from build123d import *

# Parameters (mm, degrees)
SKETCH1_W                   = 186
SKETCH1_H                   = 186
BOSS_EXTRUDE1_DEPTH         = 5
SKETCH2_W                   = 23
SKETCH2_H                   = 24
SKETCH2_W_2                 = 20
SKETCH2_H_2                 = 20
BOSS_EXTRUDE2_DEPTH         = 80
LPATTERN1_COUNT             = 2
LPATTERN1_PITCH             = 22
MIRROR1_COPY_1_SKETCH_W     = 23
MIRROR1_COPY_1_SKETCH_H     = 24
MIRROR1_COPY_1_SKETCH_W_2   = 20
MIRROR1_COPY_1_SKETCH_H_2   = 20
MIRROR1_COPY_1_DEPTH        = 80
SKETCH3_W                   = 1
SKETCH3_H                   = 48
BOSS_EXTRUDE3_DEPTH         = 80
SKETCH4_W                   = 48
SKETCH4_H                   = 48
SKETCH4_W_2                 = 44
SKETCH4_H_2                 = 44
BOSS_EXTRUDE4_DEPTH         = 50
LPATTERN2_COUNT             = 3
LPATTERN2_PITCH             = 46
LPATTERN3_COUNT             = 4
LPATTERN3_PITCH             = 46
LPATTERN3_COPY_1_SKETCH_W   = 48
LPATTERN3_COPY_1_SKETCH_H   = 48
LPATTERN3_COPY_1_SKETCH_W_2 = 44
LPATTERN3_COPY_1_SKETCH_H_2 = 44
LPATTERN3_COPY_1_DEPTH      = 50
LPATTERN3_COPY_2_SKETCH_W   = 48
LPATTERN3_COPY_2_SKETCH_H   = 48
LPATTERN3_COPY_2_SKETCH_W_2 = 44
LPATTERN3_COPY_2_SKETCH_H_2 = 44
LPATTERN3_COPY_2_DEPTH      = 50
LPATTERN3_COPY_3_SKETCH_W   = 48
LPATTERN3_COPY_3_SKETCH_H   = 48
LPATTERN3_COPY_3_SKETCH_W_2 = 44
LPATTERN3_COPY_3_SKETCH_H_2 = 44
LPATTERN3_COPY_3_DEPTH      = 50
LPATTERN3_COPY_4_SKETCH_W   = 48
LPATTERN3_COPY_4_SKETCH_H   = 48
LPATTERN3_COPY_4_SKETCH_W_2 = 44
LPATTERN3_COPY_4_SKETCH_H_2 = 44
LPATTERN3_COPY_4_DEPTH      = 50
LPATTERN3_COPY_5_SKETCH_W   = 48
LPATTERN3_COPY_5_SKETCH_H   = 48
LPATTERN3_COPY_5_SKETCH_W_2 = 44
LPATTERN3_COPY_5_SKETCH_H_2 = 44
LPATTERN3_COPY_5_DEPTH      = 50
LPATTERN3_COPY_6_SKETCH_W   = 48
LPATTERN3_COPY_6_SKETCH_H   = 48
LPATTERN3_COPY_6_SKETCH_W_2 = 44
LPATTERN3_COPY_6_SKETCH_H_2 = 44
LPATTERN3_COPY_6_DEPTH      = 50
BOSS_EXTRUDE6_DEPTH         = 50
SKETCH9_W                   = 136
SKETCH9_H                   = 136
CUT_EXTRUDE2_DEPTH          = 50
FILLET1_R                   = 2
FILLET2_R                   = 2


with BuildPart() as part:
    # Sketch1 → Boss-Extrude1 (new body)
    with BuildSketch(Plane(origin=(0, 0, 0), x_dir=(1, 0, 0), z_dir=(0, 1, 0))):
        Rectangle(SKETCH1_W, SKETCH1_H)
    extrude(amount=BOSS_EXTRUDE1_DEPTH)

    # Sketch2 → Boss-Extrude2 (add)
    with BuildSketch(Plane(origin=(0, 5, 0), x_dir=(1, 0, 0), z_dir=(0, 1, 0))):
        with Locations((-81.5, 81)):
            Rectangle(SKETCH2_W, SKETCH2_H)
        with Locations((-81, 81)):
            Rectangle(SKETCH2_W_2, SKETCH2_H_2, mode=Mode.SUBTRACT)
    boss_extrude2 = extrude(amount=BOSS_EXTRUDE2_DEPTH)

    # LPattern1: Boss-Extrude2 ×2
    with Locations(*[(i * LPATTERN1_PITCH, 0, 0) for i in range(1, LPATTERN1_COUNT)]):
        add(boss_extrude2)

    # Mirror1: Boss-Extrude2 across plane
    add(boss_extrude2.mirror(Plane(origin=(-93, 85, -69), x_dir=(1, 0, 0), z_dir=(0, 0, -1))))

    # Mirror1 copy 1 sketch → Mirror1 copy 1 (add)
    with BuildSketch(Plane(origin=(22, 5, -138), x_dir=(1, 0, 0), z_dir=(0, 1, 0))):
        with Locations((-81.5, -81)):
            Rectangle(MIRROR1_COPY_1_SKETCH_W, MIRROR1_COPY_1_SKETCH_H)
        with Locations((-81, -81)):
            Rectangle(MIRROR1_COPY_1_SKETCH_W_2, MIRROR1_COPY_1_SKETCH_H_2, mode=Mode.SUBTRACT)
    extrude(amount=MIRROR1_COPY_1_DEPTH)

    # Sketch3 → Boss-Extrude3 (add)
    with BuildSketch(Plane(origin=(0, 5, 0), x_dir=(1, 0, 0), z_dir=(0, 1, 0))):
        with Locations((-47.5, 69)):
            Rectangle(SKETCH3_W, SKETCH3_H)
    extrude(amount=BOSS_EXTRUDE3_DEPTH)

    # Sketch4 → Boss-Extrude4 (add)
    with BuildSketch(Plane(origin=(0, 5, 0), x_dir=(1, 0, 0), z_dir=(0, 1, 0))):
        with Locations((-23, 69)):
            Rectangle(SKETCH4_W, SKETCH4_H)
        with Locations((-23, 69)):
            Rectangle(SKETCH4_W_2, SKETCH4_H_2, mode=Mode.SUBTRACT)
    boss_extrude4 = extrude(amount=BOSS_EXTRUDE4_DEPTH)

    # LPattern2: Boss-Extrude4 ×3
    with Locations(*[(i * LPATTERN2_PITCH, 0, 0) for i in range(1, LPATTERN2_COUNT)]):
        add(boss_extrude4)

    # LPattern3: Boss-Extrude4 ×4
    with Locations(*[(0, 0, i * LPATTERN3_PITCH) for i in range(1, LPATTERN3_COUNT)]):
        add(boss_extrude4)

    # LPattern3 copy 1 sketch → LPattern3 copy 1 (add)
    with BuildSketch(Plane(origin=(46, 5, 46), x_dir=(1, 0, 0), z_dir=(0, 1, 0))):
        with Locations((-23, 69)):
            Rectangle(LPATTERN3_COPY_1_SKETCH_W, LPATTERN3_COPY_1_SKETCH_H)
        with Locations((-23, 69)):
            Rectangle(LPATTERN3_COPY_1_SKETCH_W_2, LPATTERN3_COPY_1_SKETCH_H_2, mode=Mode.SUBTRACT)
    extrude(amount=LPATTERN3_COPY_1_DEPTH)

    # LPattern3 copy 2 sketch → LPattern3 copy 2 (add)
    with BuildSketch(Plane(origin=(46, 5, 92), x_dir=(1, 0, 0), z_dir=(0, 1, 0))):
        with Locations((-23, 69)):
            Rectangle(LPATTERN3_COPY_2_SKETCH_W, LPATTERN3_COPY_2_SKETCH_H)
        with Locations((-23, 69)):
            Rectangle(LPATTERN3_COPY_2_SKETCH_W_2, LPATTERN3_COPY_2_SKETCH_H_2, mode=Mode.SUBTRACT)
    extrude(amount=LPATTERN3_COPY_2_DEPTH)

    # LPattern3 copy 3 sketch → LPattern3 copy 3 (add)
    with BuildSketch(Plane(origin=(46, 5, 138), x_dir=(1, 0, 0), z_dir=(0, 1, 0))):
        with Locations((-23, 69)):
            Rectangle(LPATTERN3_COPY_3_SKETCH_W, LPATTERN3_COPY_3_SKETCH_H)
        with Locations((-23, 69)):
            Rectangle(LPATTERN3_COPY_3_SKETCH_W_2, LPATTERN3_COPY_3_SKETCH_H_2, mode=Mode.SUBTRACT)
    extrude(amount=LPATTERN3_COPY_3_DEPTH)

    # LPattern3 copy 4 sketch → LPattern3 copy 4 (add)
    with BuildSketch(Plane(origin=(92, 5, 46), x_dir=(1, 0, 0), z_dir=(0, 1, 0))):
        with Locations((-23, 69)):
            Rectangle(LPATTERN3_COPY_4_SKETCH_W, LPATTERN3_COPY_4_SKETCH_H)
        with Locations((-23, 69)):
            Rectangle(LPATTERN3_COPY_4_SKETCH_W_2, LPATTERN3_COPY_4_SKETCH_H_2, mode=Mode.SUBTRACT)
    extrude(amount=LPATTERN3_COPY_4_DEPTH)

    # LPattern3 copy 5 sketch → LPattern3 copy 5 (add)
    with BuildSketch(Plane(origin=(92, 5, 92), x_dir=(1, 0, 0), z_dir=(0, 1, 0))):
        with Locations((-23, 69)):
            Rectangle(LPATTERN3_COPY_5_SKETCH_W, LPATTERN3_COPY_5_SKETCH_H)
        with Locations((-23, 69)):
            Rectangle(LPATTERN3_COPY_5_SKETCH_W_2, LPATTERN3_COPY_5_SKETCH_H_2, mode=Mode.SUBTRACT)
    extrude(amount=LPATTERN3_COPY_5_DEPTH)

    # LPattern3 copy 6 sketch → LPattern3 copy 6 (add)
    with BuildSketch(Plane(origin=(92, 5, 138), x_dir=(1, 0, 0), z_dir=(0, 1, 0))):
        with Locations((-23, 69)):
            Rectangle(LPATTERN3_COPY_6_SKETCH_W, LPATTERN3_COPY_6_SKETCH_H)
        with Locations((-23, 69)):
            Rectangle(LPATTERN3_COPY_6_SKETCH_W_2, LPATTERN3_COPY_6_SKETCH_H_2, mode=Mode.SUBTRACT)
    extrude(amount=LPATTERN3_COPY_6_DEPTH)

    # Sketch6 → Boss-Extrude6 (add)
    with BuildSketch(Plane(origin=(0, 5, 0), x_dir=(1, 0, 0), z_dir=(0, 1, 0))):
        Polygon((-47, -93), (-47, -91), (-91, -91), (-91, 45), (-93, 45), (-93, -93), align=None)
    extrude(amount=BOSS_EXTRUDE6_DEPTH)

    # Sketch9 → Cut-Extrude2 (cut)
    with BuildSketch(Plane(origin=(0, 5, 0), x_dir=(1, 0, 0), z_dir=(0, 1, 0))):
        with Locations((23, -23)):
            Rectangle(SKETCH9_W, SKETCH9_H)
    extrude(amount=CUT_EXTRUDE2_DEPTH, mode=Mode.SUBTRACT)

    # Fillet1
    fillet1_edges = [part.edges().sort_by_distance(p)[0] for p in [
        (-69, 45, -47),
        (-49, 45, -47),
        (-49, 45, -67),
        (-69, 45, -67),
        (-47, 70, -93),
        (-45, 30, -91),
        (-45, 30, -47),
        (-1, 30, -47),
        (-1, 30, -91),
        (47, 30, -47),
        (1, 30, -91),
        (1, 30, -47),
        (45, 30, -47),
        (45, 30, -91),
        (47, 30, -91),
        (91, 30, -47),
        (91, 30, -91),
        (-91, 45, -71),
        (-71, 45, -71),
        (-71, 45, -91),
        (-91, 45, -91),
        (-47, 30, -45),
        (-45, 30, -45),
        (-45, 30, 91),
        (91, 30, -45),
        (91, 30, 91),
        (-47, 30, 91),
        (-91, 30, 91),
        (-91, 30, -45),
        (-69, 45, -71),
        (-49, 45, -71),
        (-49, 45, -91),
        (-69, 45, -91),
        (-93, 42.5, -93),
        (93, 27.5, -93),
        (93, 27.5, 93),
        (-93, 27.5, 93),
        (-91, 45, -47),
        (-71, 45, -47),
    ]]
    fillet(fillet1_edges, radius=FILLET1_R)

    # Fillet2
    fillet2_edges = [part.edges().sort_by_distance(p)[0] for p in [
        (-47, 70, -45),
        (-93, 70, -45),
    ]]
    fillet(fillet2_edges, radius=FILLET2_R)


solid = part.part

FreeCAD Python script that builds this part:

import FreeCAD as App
import Part
import Sketcher

V = App.Vector


def edges_at(feature, points):
    """Names of the edges that pass closest to the given points."""
    edges = feature.Shape.Edges
    near = lambda p: min(range(len(edges)), key=lambda i: edges[i].distToShape(Part.Vertex(*p))[0])
    return sorted({f"Edge{near(p) + 1}" for p in points})


def add_polygon(sketch, points):
    """Adds a closed chain of lines whose ends are joined by coincident constraints."""
    first, n = sketch.GeometryCount, len(points)
    for a, b in zip(points, points[1:] + points[:1]):
        sketch.addGeometry(Part.LineSegment(App.Vector(*a, 0), App.Vector(*b, 0)), False)
    for i in range(n):
        sketch.addConstraint(Sketcher.Constraint("Coincident", first + i, 2, first + (i + 1) % n, 1))

doc = App.newDocument("Part")
body = doc.addObject("PartDesign::Body", "Body")

# Sketch on XZ plane
sketch1 = body.newObject("Sketcher::SketchObject", "Sketch")
sketch1.AttachmentSupport = (doc.getObject("XZ_Plane"), [""])
sketch1.MapMode = "FlatFace"
add_polygon(sketch1, [(-93, -93), (-93, 93), (93, 93), (93, -93)])  # lines 0-3
sketch1.addConstraint([
    Sketcher.Constraint("Vertical", 0),
    Sketcher.Constraint("Horizontal", 1),
    Sketcher.Constraint("Vertical", 2),
    Sketcher.Constraint("Horizontal", 3),
    Sketcher.Constraint("Symmetric", 0, 2, 2, 2, -1, 1),
    Sketcher.Constraint("Equal", 3, 0),
    Sketcher.Constraint("DistanceX", 1, 1, 1, 2, 186.0),
])
pad1 = body.newObject("PartDesign::Pad", "Pad")
pad1.Profile = sketch1
pad1.Length = 5
pad1.Reversed = True

# Sketch on XZ plane
sketch2 = body.newObject("Sketcher::SketchObject", "Sketch001")
sketch2.AttachmentSupport = (doc.getObject("XZ_Plane"), [""])
sketch2.MapMode = "FlatFace"
sketch2.AttachmentOffset = App.Placement(V(0, 0, -5), App.Rotation())
add_polygon(sketch2, [(-93, -93), (-93, -69), (-70, -69), (-70, -93)])  # lines 0-3
add_polygon(sketch2, [(-71, -71), (-91, -71), (-91, -91), (-71, -91)])  # lines 4-7
sketch2.addConstraint([
    Sketcher.Constraint("Vertical", 0),
    Sketcher.Constraint("Horizontal", 1),
    Sketcher.Constraint("Vertical", 2),
    Sketcher.Constraint("Horizontal", 3),
    Sketcher.Constraint("Horizontal", 4),
    Sketcher.Constraint("Vertical", 5),
    Sketcher.Constraint("Horizontal", 6),
    Sketcher.Constraint("Vertical", 7),
    Sketcher.Constraint("Equal", 6, 5),
    Sketcher.Constraint("DistanceX", 1, 1, 1, 2, 23.0),
    Sketcher.Constraint("DistanceX", 4, 2, 4, 1, 20.0),
    Sketcher.Constraint("DistanceY", 0, 1, 0, 2, 24.0),
    Sketcher.Constraint("DistanceX", 0, 2, -1, 1, 93.0),
    Sketcher.Constraint("DistanceY", 0, 2, -1, 1, 69.0),
    Sketcher.Constraint("DistanceX", 4, 2, -1, 1, 91.0),
    Sketcher.Constraint("DistanceY", 4, 2, -1, 1, 71.0),
])
pad2 = body.newObject("PartDesign::Pad", "Pad001")
pad2.Profile = sketch2
pad2.Length = 80
pad2.Reversed = True
doc.recompute()

linearpattern = body.newObject("PartDesign::LinearPattern", "LinearPattern")
linearpattern.Originals = [pad2]
linearpattern.Direction = (doc.getObject("X_Axis"), [""])
linearpattern.Mode = "offset"
linearpattern.Offset = 22
linearpattern.Occurrences = 2
body.Tip = linearpattern
doc.recompute()

datumplane = body.newObject("PartDesign::Plane", "DatumPlane")
datumplane.AttachmentSupport = (doc.getObject("XY_Plane"), [""])
datumplane.MapMode = "FlatFace"
datumplane.AttachmentOffset = App.Placement(V(0, 0, -69), App.Rotation())
mirrored = body.newObject("PartDesign::Mirrored", "Mirrored")
mirrored.Originals = [pad2]
mirrored.MirrorPlane = (datumplane, [""])
body.Tip = mirrored

# Sketch on XZ plane
sketch3 = body.newObject("Sketcher::SketchObject", "Sketch002")
sketch3.AttachmentSupport = (doc.getObject("XZ_Plane"), [""])
sketch3.MapMode = "FlatFace"
sketch3.AttachmentOffset = App.Placement(V(0, 0, -5), App.Rotation())
add_polygon(sketch3, [(-71, -69), (-71, -45), (-48, -45), (-48, -69)])  # lines 0-3
add_polygon(sketch3, [(-49, -47), (-69, -47), (-69, -67), (-49, -67)])  # lines 4-7
sketch3.addConstraint([
    Sketcher.Constraint("Vertical", 0),
    Sketcher.Constraint("Horizontal", 1),
    Sketcher.Constraint("Vertical", 2),
    Sketcher.Constraint("Horizontal", 3),
    Sketcher.Constraint("Horizontal", 4),
    Sketcher.Constraint("Vertical", 5),
    Sketcher.Constraint("Horizontal", 6),
    Sketcher.Constraint("Vertical", 7),
    Sketcher.Constraint("Equal", 6, 5),
    Sketcher.Constraint("DistanceX", 1, 1, 1, 2, 23.0),
    Sketcher.Constraint("DistanceX", 4, 2, 4, 1, 20.0),
    Sketcher.Constraint("DistanceY", 0, 1, 0, 2, 24.0),
    Sketcher.Constraint("DistanceX", 0, 2, -1, 1, 71.0),
    Sketcher.Constraint("DistanceY", 0, 2, -1, 1, 45.0),
    Sketcher.Constraint("DistanceX", 4, 2, -1, 1, 69.0),
    Sketcher.Constraint("DistanceY", 4, 2, -1, 1, 47.0),
])
pad3 = body.newObject("PartDesign::Pad", "Pad002")
pad3.Profile = sketch3
pad3.Length = 80
pad3.Reversed = True

# Sketch on XZ plane
sketch4 = body.newObject("Sketcher::SketchObject", "Sketch003")
sketch4.AttachmentSupport = (doc.getObject("XZ_Plane"), [""])
sketch4.MapMode = "FlatFace"
sketch4.AttachmentOffset = App.Placement(V(0, 0, -5), App.Rotation())
add_polygon(sketch4, [(-48, -93), (-48, -45), (-47, -45), (-47, -93)])  # lines 0-3
sketch4.addConstraint([
    Sketcher.Constraint("Vertical", 0),
    Sketcher.Constraint("Horizontal", 1),
    Sketcher.Constraint("Vertical", 2),
    Sketcher.Constraint("Horizontal", 3),
    Sketcher.Constraint("DistanceX", 1, 1, 1, 2, 1.0),
    Sketcher.Constraint("DistanceY", 0, 1, 0, 2, 48.0),
    Sketcher.Constraint("DistanceX", 0, 2, -1, 1, 48.0),
    Sketcher.Constraint("DistanceY", 0, 2, -1, 1, 45.0),
])
pad4 = body.newObject("PartDesign::Pad", "Pad003")
pad4.Profile = sketch4
pad4.Length = 80
pad4.Reversed = True

# Sketch on XZ plane
sketch5 = body.newObject("Sketcher::SketchObject", "Sketch004")
sketch5.AttachmentSupport = (doc.getObject("XZ_Plane"), [""])
sketch5.MapMode = "FlatFace"
sketch5.AttachmentOffset = App.Placement(V(0, 0, -5), App.Rotation())
add_polygon(sketch5, [(-47, -93), (-47, -45), (1, -45), (1, -93)])  # lines 0-3
add_polygon(sketch5, [(-1, -47), (-45, -47), (-45, -91), (-1, -91)])  # lines 4-7
sketch5.addConstraint([
    Sketcher.Constraint("Vertical", 0),
    Sketcher.Constraint("Horizontal", 1),
    Sketcher.Constraint("Vertical", 2),
    Sketcher.Constraint("Horizontal", 3),
    Sketcher.Constraint("Horizontal", 4),
    Sketcher.Constraint("Vertical", 5),
    Sketcher.Constraint("Horizontal", 6),
    Sketcher.Constraint("Vertical", 7),
    Sketcher.Constraint("Equal", 3, 0),
    Sketcher.Constraint("Equal", 6, 5),
    Sketcher.Constraint("DistanceX", 1, 1, 1, 2, 48.0),
    Sketcher.Constraint("DistanceX", 4, 2, 4, 1, 44.0),
    Sketcher.Constraint("DistanceX", 0, 2, -1, 1, 47.0),
    Sketcher.Constraint("DistanceY", 0, 2, -1, 1, 45.0),
    Sketcher.Constraint("DistanceX", 4, 2, -1, 1, 45.0),
    Sketcher.Constraint("DistanceY", 4, 2, -1, 1, 47.0),
])
pad5 = body.newObject("PartDesign::Pad", "Pad004")
pad5.Profile = sketch5
pad5.Length = 50
pad5.Reversed = True
doc.recompute()

linearpattern2 = body.newObject("PartDesign::LinearPattern", "LinearPattern001")
linearpattern2.Originals = [pad5]
linearpattern2.Direction = (doc.getObject("X_Axis"), [""])
linearpattern2.Mode = "offset"
linearpattern2.Offset = 46
linearpattern2.Occurrences = 3
body.Tip = linearpattern2
doc.recompute()

linearpattern3 = body.newObject("PartDesign::LinearPattern", "LinearPattern002")
linearpattern3.Originals = [pad5]
linearpattern3.Direction = (doc.getObject("Z_Axis"), [""])
linearpattern3.Mode = "offset"
linearpattern3.Offset = 46
linearpattern3.Occurrences = 4
body.Tip = linearpattern3

# Sketch on XZ plane
sketch6 = body.newObject("Sketcher::SketchObject", "Sketch005")
sketch6.AttachmentSupport = (doc.getObject("XZ_Plane"), [""])
sketch6.MapMode = "FlatFace"
sketch6.AttachmentOffset = App.Placement(V(0, 0, -5), App.Rotation())
add_polygon(sketch6, [(-1, -47), (-1, 1), (47, 1), (47, -47)])  # lines 0-3
add_polygon(sketch6, [(45, -1), (1, -1), (1, -45), (45, -45)])  # lines 4-7
sketch6.addConstraint([
    Sketcher.Constraint("Vertical", 0),
    Sketcher.Constraint("Horizontal", 1),
    Sketcher.Constraint("Vertical", 2),
    Sketcher.Constraint("Horizontal", 3),
    Sketcher.Constraint("Horizontal", 4),
    Sketcher.Constraint("Vertical", 5),
    Sketcher.Constraint("Horizontal", 6),
    Sketcher.Constraint("Vertical", 7),
    Sketcher.Constraint("Symmetric", 0, 2, 4, 2, -1, 1),
    Sketcher.Constraint("Equal", 3, 0),
    Sketcher.Constraint("Equal", 6, 5),
    Sketcher.Constraint("DistanceX", 1, 1, 1, 2, 48.0),
    Sketcher.Constraint("DistanceX", 4, 2, 4, 1, 44.0),
    Sketcher.Constraint("DistanceX", 0, 2, -1, 1, 1.0),
    Sketcher.Constraint("DistanceY", -1, 1, 0, 2, 1.0),
])
pad6 = body.newObject("PartDesign::Pad", "Pad005")
pad6.Profile = sketch6
pad6.Length = 50
pad6.Reversed = True

# Sketch on XZ plane
sketch7 = body.newObject("Sketcher::SketchObject", "Sketch006")
sketch7.AttachmentSupport = (doc.getObject("XZ_Plane"), [""])
sketch7.MapMode = "FlatFace"
sketch7.AttachmentOffset = App.Placement(V(0, 0, -5), App.Rotation())
add_polygon(sketch7, [(-1, -1), (-1, 47), (47, 47), (47, -1)])  # lines 0-3
add_polygon(sketch7, [(45, 45), (1, 45), (1, 1), (45, 1)])  # lines 4-7
sketch7.addConstraint([
    Sketcher.Constraint("Vertical", 0),
    Sketcher.Constraint("Horizontal", 1),
    Sketcher.Constraint("Vertical", 2),
    Sketcher.Constraint("Horizontal", 3),
    Sketcher.Constraint("Horizontal", 4),
    Sketcher.Constraint("Vertical", 5),
    Sketcher.Constraint("Horizontal", 6),
    Sketcher.Constraint("Vertical", 7),
    Sketcher.Constraint("Symmetric", 3, 2, 5, 2, -1, 1),
    Sketcher.Constraint("Equal", 3, 0),
    Sketcher.Constraint("Equal", 6, 5),
    Sketcher.Constraint("DistanceX", 1, 1, 1, 2, 48.0),
    Sketcher.Constraint("DistanceX", 4, 2, 4, 1, 44.0),
    Sketcher.Constraint("DistanceX", 0, 2, -1, 1, 1.0),
    Sketcher.Constraint("DistanceY", -1, 1, 0, 2, 47.0),
])
pad7 = body.newObject("PartDesign::Pad", "Pad006")
pad7.Profile = sketch7
pad7.Length = 50
pad7.Reversed = True

# Sketch on XZ plane
sketch8 = body.newObject("Sketcher::SketchObject", "Sketch007")
sketch8.AttachmentSupport = (doc.getObject("XZ_Plane"), [""])
sketch8.MapMode = "FlatFace"
sketch8.AttachmentOffset = App.Placement(V(0, 0, -5), App.Rotation())
add_polygon(sketch8, [(-1, 45), (-1, 93), (47, 93), (47, 45)])  # lines 0-3
add_polygon(sketch8, [(45, 91), (1, 91), (1, 47), (45, 47)])  # lines 4-7
sketch8.addConstraint([
    Sketcher.Constraint("Vertical", 0),
    Sketcher.Constraint("Horizontal", 1),
    Sketcher.Constraint("Vertical", 2),
    Sketcher.Constraint("Horizontal", 3),
    Sketcher.Constraint("Horizontal", 4),
    Sketcher.Constraint("Vertical", 5),
    Sketcher.Constraint("Horizontal", 6),
    Sketcher.Constraint("Vertical", 7),
    Sketcher.Constraint("Equal", 3, 0),
    Sketcher.Constraint("Equal", 6, 5),
    Sketcher.Constraint("DistanceX", 1, 1, 1, 2, 48.0),
    Sketcher.Constraint("DistanceX", 4, 2, 4, 1, 44.0),
    Sketcher.Constraint("DistanceX", 0, 2, -1, 1, 1.0),
    Sketcher.Constraint("DistanceY", -1, 1, 0, 2, 93.0),
    Sketcher.Constraint("DistanceX", -1, 1, 4, 2, 1.0),
    Sketcher.Constraint("DistanceY", -1, 1, 4, 2, 91.0),
])
pad8 = body.newObject("PartDesign::Pad", "Pad007")
pad8.Profile = sketch8
pad8.Length = 50
pad8.Reversed = True

# Sketch on XZ plane
sketch9 = body.newObject("Sketcher::SketchObject", "Sketch008")
sketch9.AttachmentSupport = (doc.getObject("XZ_Plane"), [""])
sketch9.MapMode = "FlatFace"
sketch9.AttachmentOffset = App.Placement(V(0, 0, -5), App.Rotation())
add_polygon(sketch9, [(45, -47), (45, 1), (93, 1), (93, -47)])  # lines 0-3
add_polygon(sketch9, [(91, -1), (47, -1), (47, -45), (91, -45)])  # lines 4-7
sketch9.addConstraint([
    Sketcher.Constraint("Vertical", 0),
    Sketcher.Constraint("Horizontal", 1),
    Sketcher.Constraint("Vertical", 2),
    Sketcher.Constraint("Horizontal", 3),
    Sketcher.Constraint("Horizontal", 4),
    Sketcher.Constraint("Vertical", 5),
    Sketcher.Constraint("Horizontal", 6),
    Sketcher.Constraint("Vertical", 7),
    Sketcher.Constraint("Equal", 3, 0),
    Sketcher.Constraint("Equal", 6, 5),
    Sketcher.Constraint("DistanceX", 1, 1, 1, 2, 48.0),
    Sketcher.Constraint("DistanceX", 4, 2, 4, 1, 44.0),
    Sketcher.Constraint("DistanceX", -1, 1, 0, 2, 45.0),
    Sketcher.Constraint("DistanceY", -1, 1, 0, 2, 1.0),
    Sketcher.Constraint("DistanceX", -1, 1, 4, 2, 47.0),
    Sketcher.Constraint("DistanceY", 4, 2, -1, 1, 1.0),
])
pad9 = body.newObject("PartDesign::Pad", "Pad008")
pad9.Profile = sketch9
pad9.Length = 50
pad9.Reversed = True

# Sketch on XZ plane
sketch10 = body.newObject("Sketcher::SketchObject", "Sketch009")
sketch10.AttachmentSupport = (doc.getObject("XZ_Plane"), [""])
sketch10.MapMode = "FlatFace"
sketch10.AttachmentOffset = App.Placement(V(0, 0, -5), App.Rotation())
add_polygon(sketch10, [(45, -1), (45, 47), (93, 47), (93, -1)])  # lines 0-3
add_polygon(sketch10, [(91, 45), (47, 45), (47, 1), (91, 1)])  # lines 4-7
sketch10.addConstraint([
    Sketcher.Constraint("Vertical", 0),
    Sketcher.Constraint("Horizontal", 1),
    Sketcher.Constraint("Vertical", 2),
    Sketcher.Constraint("Horizontal", 3),
    Sketcher.Constraint("Horizontal", 4),
    Sketcher.Constraint("Vertical", 5),
    Sketcher.Constraint("Horizontal", 6),
    Sketcher.Constraint("Vertical", 7),
    Sketcher.Constraint("Equal", 3, 0),
    Sketcher.Constraint("Equal", 6, 5),
    Sketcher.Constraint("DistanceX", 1, 1, 1, 2, 48.0),
    Sketcher.Constraint("DistanceX", 4, 2, 4, 1, 44.0),
    Sketcher.Constraint("DistanceX", -1, 1, 0, 2, 45.0),
    Sketcher.Constraint("DistanceY", -1, 1, 0, 2, 47.0),
    Sketcher.Constraint("DistanceX", -1, 1, 4, 2, 47.0),
    Sketcher.Constraint("DistanceY", -1, 1, 4, 2, 45.0),
])
pad10 = body.newObject("PartDesign::Pad", "Pad009")
pad10.Profile = sketch10
pad10.Length = 50
pad10.Reversed = True

# Sketch on XZ plane
sketch11 = body.newObject("Sketcher::SketchObject", "Sketch010")
sketch11.AttachmentSupport = (doc.getObject("XZ_Plane"), [""])
sketch11.MapMode = "FlatFace"
sketch11.AttachmentOffset = App.Placement(V(0, 0, -5), App.Rotation())
add_polygon(sketch11, [(45, 45), (45, 93), (93, 93), (93, 45)])  # lines 0-3
add_polygon(sketch11, [(91, 91), (47, 91), (47, 47), (91, 47)])  # lines 4-7
sketch11.addConstraint([
    Sketcher.Constraint("Vertical", 0),
    Sketcher.Constraint("Horizontal", 1),
    Sketcher.Constraint("Vertical", 2),
    Sketcher.Constraint("Horizontal", 3),
    Sketcher.Constraint("Horizontal", 4),
    Sketcher.Constraint("Vertical", 5),
    Sketcher.Constraint("Horizontal", 6),
    Sketcher.Constraint("Vertical", 7),
    Sketcher.Constraint("Equal", 3, 0),
    Sketcher.Constraint("Equal", 6, 5),
    Sketcher.Constraint("DistanceX", 1, 1, 1, 2, 48.0),
    Sketcher.Constraint("DistanceX", 4, 2, 4, 1, 44.0),
    Sketcher.Constraint("DistanceX", -1, 1, 0, 2, 45.0),
    Sketcher.Constraint("DistanceY", -1, 1, 0, 2, 93.0),
    Sketcher.Constraint("DistanceX", -1, 1, 4, 2, 47.0),
    Sketcher.Constraint("DistanceY", -1, 1, 4, 2, 91.0),
])
pad11 = body.newObject("PartDesign::Pad", "Pad010")
pad11.Profile = sketch11
pad11.Length = 50
pad11.Reversed = True

# Sketch on XZ plane
sketch12 = body.newObject("Sketcher::SketchObject", "Sketch011")
sketch12.AttachmentSupport = (doc.getObject("XZ_Plane"), [""])
sketch12.MapMode = "FlatFace"
sketch12.AttachmentOffset = App.Placement(V(0, 0, -5), App.Rotation())
add_polygon(sketch12, [(-47, 93), (-47, 91), (-91, 91), (-91, -45), (-93, -45), (-93, 93)])  # lines 0-5
sketch12.addConstraint([
    Sketcher.Constraint("Vertical", 0),
    Sketcher.Constraint("Horizontal", 1),
    Sketcher.Constraint("Vertical", 2),
    Sketcher.Constraint("Horizontal", 3),
    Sketcher.Constraint("Vertical", 4),
    Sketcher.Constraint("Horizontal", 5),
    Sketcher.Constraint("Equal", 3, 0),
    Sketcher.Constraint("DistanceX", 1, 2, 1, 1, 44.0),
    Sketcher.Constraint("DistanceX", 3, 2, 3, 1, 2.0),
    Sketcher.Constraint("DistanceY", 2, 2, 2, 1, 136.0),
    Sketcher.Constraint("DistanceX", 0, 2, -1, 1, 47.0),
    Sketcher.Constraint("DistanceY", -1, 1, 0, 2, 91.0),
])
pad12 = body.newObject("PartDesign::Pad", "Pad011")
pad12.Profile = sketch12
pad12.Length = 50
pad12.Reversed = True

# Sketch on XZ plane
sketch13 = body.newObject("Sketcher::SketchObject", "Sketch012")
sketch13.AttachmentSupport = (doc.getObject("XZ_Plane"), [""])
sketch13.MapMode = "FlatFace"
sketch13.AttachmentOffset = App.Placement(V(0, 0, -5), App.Rotation())
add_polygon(sketch13, [(-45, -45), (-45, 91), (91, 91), (91, -45)])  # lines 0-3
sketch13.addConstraint([
    Sketcher.Constraint("Vertical", 0),
    Sketcher.Constraint("Horizontal", 1),
    Sketcher.Constraint("Vertical", 2),
    Sketcher.Constraint("Horizontal", 3),
    Sketcher.Constraint("Equal", 3, 0),
    Sketcher.Constraint("DistanceX", 1, 1, 1, 2, 136.0),
    Sketcher.Constraint("DistanceX", 0, 2, -1, 1, 45.0),
    Sketcher.Constraint("DistanceY", -1, 1, 0, 2, 91.0),
])
pocket1 = body.newObject("PartDesign::Pocket", "Pocket")
pocket1.Profile = sketch13
pocket1.Length = 50
doc.recompute()

fillet = body.newObject("PartDesign::Fillet", "Fillet")
fillet.Base = (pocket1, edges_at(pocket1, [
    (-69, 45, -47),
    (-49, 45, -47),
    (-49, 45, -67),
    (-69, 45, -67),
    (-47, 70, -93),
    (-45, 30, -91),
    (-45, 30, -47),
    (-1, 30, -47),
    (-1, 30, -91),
    (47, 30, -47),
    (1, 30, -91),
    (1, 30, -47),
    (45, 30, -47),
    (45, 30, -91),
    (47, 30, -91),
    (91, 30, -47),
    (91, 30, -91),
    (-91, 45, -71),
    (-71, 45, -71),
    (-71, 45, -91),
    (-91, 45, -91),
    (-47, 30, -45),
    (-45, 30, -45),
    (-45, 30, 91),
    (91, 30, -45),
    (91, 30, 91),
    (-47, 30, 91),
    (-91, 30, 91),
    (-91, 30, -45),
    (-69, 45, -71),
    (-49, 45, -71),
    (-49, 45, -91),
    (-69, 45, -91),
    (-93, 42.5, -93),
    (93, 27.5, -93),
    (93, 27.5, 93),
    (-93, 27.5, 93),
    (-91, 45, -47),
    (-71, 45, -47),
]))
fillet.Radius = 2
doc.recompute()

fillet2 = body.newObject("PartDesign::Fillet", "Fillet001")
fillet2.Base = (fillet, edges_at(fillet, [(-47, 70, -45), (-93, 70, -45)]))
fillet2.Radius = 2

doc.recompute()
